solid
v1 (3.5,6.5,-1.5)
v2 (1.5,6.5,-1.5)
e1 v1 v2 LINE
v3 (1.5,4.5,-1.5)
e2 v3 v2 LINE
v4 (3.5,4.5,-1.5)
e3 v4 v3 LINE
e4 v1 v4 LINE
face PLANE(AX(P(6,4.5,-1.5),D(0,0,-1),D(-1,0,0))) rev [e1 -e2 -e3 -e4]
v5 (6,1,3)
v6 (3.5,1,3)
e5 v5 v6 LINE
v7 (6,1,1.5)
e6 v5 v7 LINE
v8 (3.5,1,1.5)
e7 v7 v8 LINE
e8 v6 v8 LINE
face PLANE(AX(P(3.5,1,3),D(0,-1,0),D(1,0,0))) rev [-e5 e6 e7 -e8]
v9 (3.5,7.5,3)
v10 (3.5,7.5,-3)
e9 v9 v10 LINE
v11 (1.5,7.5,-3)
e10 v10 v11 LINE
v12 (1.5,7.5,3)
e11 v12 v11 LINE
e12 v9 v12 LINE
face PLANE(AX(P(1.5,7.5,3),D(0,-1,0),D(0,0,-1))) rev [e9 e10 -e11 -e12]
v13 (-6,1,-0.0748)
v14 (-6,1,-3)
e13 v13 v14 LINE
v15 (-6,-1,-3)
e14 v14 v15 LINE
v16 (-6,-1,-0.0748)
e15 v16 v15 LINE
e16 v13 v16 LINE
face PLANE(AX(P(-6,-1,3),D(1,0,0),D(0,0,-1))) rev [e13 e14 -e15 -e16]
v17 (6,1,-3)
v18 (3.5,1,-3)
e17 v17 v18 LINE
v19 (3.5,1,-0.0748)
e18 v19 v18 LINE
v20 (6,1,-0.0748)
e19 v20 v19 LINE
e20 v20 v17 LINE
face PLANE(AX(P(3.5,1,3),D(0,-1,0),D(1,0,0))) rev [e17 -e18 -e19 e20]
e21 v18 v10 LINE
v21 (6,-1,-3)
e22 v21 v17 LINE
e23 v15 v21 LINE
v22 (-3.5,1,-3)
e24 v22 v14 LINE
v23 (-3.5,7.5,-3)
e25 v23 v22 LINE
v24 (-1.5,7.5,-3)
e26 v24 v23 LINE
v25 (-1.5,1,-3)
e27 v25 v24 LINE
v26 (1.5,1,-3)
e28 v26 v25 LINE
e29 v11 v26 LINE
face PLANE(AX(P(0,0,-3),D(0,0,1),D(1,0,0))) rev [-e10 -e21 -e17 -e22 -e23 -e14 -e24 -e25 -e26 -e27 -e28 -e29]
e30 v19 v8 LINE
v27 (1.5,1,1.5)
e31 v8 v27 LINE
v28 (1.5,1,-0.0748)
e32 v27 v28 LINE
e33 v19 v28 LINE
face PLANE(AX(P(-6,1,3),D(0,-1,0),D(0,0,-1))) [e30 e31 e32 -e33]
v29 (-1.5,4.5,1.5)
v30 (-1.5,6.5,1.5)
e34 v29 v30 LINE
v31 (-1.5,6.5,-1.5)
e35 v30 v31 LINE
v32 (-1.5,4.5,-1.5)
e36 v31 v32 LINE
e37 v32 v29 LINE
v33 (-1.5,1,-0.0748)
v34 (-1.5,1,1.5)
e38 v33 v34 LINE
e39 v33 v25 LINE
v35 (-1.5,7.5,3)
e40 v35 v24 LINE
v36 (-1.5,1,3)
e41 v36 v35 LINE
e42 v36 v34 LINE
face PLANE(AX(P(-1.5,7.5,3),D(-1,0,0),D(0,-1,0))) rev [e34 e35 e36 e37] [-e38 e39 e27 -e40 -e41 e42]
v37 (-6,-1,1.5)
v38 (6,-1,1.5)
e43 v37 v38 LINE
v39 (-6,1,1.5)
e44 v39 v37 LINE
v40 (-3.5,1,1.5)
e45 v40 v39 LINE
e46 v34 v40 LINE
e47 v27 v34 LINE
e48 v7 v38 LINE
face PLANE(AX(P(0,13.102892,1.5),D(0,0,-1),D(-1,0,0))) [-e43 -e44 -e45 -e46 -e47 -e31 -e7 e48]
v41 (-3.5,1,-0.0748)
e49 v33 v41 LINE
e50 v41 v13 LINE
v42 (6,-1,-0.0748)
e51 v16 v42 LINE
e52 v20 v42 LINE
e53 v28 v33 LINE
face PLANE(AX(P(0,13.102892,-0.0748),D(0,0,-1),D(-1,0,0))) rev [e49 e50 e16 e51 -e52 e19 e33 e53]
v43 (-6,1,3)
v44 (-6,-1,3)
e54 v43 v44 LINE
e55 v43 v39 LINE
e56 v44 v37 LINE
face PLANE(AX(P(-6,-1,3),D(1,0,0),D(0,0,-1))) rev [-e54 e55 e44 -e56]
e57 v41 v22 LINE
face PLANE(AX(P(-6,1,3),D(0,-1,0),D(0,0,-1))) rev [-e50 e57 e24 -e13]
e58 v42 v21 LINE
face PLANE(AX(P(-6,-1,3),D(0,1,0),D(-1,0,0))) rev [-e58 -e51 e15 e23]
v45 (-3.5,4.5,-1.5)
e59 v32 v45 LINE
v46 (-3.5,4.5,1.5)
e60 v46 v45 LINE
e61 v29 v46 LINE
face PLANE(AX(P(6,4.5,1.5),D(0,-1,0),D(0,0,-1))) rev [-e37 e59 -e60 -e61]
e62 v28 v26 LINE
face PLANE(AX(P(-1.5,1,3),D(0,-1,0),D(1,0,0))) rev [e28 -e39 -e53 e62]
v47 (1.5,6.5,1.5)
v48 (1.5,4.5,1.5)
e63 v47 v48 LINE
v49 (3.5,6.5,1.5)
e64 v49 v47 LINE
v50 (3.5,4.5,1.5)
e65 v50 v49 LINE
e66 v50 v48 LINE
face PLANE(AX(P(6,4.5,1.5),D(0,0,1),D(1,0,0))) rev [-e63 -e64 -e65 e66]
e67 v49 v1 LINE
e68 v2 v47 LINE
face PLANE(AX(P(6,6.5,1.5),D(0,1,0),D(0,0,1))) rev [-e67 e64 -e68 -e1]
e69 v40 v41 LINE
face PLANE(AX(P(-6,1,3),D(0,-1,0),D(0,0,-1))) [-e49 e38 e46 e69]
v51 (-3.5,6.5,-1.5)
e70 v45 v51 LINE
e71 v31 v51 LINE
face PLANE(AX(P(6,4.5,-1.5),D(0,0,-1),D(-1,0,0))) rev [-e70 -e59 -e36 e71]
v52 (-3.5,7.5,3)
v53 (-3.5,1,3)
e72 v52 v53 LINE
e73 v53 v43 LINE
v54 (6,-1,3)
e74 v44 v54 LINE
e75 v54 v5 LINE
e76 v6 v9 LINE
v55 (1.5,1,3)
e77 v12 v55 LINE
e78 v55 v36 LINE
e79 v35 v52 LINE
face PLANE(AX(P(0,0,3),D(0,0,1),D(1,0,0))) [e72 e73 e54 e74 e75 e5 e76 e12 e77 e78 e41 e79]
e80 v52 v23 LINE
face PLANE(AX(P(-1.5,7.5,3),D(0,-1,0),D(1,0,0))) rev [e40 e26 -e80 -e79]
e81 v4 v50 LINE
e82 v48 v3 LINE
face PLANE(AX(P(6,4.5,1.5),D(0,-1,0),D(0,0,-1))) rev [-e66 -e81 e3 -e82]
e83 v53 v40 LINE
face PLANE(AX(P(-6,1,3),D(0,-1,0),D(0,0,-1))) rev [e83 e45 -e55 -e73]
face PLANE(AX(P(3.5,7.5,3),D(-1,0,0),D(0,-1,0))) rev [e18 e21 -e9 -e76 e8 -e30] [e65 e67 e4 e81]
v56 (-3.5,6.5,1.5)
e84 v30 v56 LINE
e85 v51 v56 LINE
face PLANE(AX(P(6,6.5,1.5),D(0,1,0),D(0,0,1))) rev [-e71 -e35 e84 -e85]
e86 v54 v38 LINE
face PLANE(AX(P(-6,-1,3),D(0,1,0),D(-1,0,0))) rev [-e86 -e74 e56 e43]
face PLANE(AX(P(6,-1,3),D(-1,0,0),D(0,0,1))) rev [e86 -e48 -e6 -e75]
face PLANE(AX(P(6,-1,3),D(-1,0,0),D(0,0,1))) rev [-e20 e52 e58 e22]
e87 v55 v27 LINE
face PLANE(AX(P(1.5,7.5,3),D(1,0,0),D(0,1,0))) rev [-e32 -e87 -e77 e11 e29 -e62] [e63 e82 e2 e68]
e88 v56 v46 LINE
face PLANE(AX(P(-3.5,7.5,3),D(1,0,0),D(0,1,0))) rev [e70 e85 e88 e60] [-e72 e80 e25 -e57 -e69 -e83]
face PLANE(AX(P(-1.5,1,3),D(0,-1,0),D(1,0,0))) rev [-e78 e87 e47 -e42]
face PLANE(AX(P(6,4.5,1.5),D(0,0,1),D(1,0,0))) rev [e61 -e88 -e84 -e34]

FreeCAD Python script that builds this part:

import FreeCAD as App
import Part
import Sketcher

doc = App.newDocument("Part")
params = doc.addObject("Spreadsheet::Sheet", "Params")
for row, (alias, value) in enumerate([
    ("sketch1_width", "12 mm"),
    ("sketch1_width2", "2 mm"),
    ("sketch1_width3", "3 mm"),
    ("sketch1_height", "6.5 mm"),
    ("pad1_length", "6 mm"),
    ("sketch2_width", "12 mm"),
    ("pocket1_length", "2 mm"),
    ("sketch3_width", "2 mm"),
    ("sketch3_height", "3 mm"),
], start=1):
    params.set(f"A{row}", alias)
    params.set(f"B{row}", "=" + value)
    params.setAlias(f"B{row}", alias)

body = doc.addObject("PartDesign::Body", "Body")

# Sketch on XY plane
sketch1 = doc.addObject("Sketcher::SketchObject", "Sketch")
body.addObject(sketch1)
sketch1.AttachmentSupport = (doc.XY_Plane, [""])
sketch1.MapMode = "FlatFace"
sketch1.addGeometry(Part.LineSegment(App.Vector(-6, -1, 0), App.Vector(6, -1, 0)), False)
sketch1.addGeometry(Part.LineSegment(App.Vector(6, -1, 0), App.Vector(6, 1, 0)), False)
sketch1.addGeometry(Part.LineSegment(App.Vector(6, 1, 0), App.Vector(3.5, 1, 0)), False)
sketch1.addGeometry(Part.LineSegment(App.Vector(3.5, 1, 0), App.Vector(3.5, 7.5, 0)), False)
sketch1.addGeometry(Part.LineSegment(App.Vector(3.5, 7.5, 0), App.Vector(1.5, 7.5, 0)), False)
sketch1.addGeometry(Part.LineSegment(App.Vector(1.5, 7.5, 0), App.Vector(1.5, 1, 0)), False)
sketch1.addGeometry(Part.LineSegment(App.Vector(1.5, 1, 0), App.Vector(-1.5, 1, 0)), False)
sketch1.addGeometry(Part.LineSegment(App.Vector(-1.5, 1, 0), App.Vector(-1.5, 7.5, 0)), False)
sketch1.addGeometry(Part.LineSegment(App.Vector(-1.5, 7.5, 0), App.Vector(-3.5, 7.5, 0)), False)
sketch1.addGeometry(Part.LineSegment(App.Vector(-3.5, 7.5, 0), App.Vector(-3.5, 1, 0)), False)
sketch1.addGeometry(Part.LineSegment(App.Vector(-3.5, 1, 0), App.Vector(-6, 1, 0)), False)
sketch1.addGeometry(Part.LineSegment(App.Vector(-6, 1, 0), App.Vector(-6, -1, 0)), False)
sketch1.addConstraint(Sketcher.Constraint("Coincident", 0, 2, 1, 1))
sketch1.addConstraint(Sketcher.Constraint("Coincident", 1, 2, 2, 1))
sketch1.addConstraint(Sketcher.Constraint("Coincident", 2, 2, 3, 1))
sketch1.addConstraint(Sketcher.Constraint("Coincident", 3, 2, 4, 1))
sketch1.addConstraint(Sketcher.Constraint("Coincident", 4, 2, 5, 1))
sketch1.addConstraint(Sketcher.Constraint("Coincident", 5, 2, 6, 1))
sketch1.addConstraint(Sketcher.Constraint("Coincident", 6, 2, 7, 1))
sketch1.addConstraint(Sketcher.Constraint("Coincident", 7, 2, 8, 1))
sketch1.addConstraint(Sketcher.Constraint("Coincident", 8, 2, 9, 1))
sketch1.addConstraint(Sketcher.Constraint("Coincident", 9, 2, 10, 1))
sketch1.addConstraint(Sketcher.Constraint("Coincident", 10, 2, 11, 1))
sketch1.addConstraint(Sketcher.Constraint("Coincident", 11, 2, 0, 1))
sketch1.addConstraint(Sketcher.Constraint("Horizontal", 0))
sketch1.addConstraint(Sketcher.Constraint("Vertical", 1))
sketch1.addConstraint(Sketcher.Constraint("Horizontal", 2))
sketch1.addConstraint(Sketcher.Constraint("Vertical", 3))
sketch1.addConstraint(Sketcher.Constraint("Horizontal", 4))
sketch1.addConstraint(Sketcher.Constraint("Vertical", 5))
sketch1.addConstraint(Sketcher.Constraint("Horizontal", 6))
sketch1.addConstraint(Sketcher.Constraint("Vertical", 7))
sketch1.addConstraint(Sketcher.Constraint("Horizontal", 8))
sketch1.addConstraint(Sketcher.Constraint("Vertical", 9))
sketch1.addConstraint(Sketcher.Constraint("Horizontal", 10))
sketch1.addConstraint(Sketcher.Constraint("Vertical", 11))
sketch1.addConstraint(Sketcher.Constraint("Symmetric", 0, 2, 10, 2, -1, 1))
sketch1.addConstraint(Sketcher.Constraint("Symmetric", 4, 2, 7, 2, -2))
sketch1.addConstraint(Sketcher.Constraint("Symmetric", 2, 2, 9, 2, -2))
sketch1.addConstraint(Sketcher.Constraint("Horizontal", 2, 2, 5, 2))
sketch1.addConstraint(Sketcher.Constraint("Equal", 8, 1))
sketch1.addConstraint(Sketcher.Constraint("DistanceX", 0, 1, 0, 2, 12.0))
sketch1.addConstraint(Sketcher.Constraint("DistanceX", 4, 2, 4, 1, 2.0))
sketch1.addConstraint(Sketcher.Constraint("DistanceX", 6, 2, 6, 1, 3.0))
sketch1.addConstraint(Sketcher.Constraint("DistanceY", 3, 1, 3, 2, 6.5))
sketch1.setExpression("Constraints[29]", "Params.sketch1_width")
sketch1.setExpression("Constraints[30]", "Params.sketch1_width2")
sketch1.setExpression("Constraints[31]", "Params.sketch1_width3")
sketch1.setExpression("Constraints[32]", "Params.sketch1_height")
pad1 = doc.addObject("PartDesign::Pad", "Pad")
body.addObject(pad1)
pad1.Profile = sketch1
pad1.setExpression("Length", "Params.pad1_length")
pad1.Midplane = True

# Sketch on XZ plane
sketch2 = doc.addObject("Sketcher::SketchObject", "Sketch001")
body.addObject(sketch2)
sketch2.AttachmentSupport = (doc.XZ_Plane, [""])
sketch2.MapMode = "FlatFace"
sketch2.AttachmentOffset = App.Placement(App.Vector(0, 0, 1), App.Rotation())
sketch2.addGeometry(Part.LineSegment(App.Vector(-6, 1.5, 0), App.Vector(-6, -0.0748, 0)), False)
sketch2.addGeometry(Part.LineSegment(App.Vector(-6, -0.0748, 0), App.Vector(6, -0.0748, 0)), False)
sketch2.addGeometry(Part.LineSegment(App.Vector(6, -0.0748, 0), App.Vector(6, 1.5, 0)), False)
sketch2.addGeometry(Part.LineSegment(App.Vector(6, 1.5, 0), App.Vector(-6, 1.5, 0)), False)
sketch2.addConstraint(Sketcher.Constraint("Coincident", 0, 2, 1, 1))
sketch2.addConstraint(Sketcher.Constraint("Coincident", 1, 2, 2, 1))
sketch2.addConstraint(Sketcher.Constraint("Coincident", 2, 2, 3, 1))
sketch2.addConstraint(Sketcher.Constraint("Coincident", 3, 2, 0, 1))
sketch2.addConstraint(Sketcher.Constraint("Vertical", 0))
sketch2.addConstraint(Sketcher.Constraint("Horizontal", 1))
sketch2.addConstraint(Sketcher.Constraint("Vertical", 2))
sketch2.addConstraint(Sketcher.Constraint("Horizontal", 3))
sketch2.addConstraint(Sketcher.Constraint("DistanceX", 1, 1, 1, 2, 12.0))
sketch2.addConstraint(Sketcher.Constraint("DistanceX", 0, 2, -1, 1, 6.0))
sketch2.addConstraint(Sketcher.Constraint("DistanceY", -1, 1, 2, 2, 1.5))
sketch2.addConstraint(Sketcher.Constraint("DistanceY", 0, 2, 0, 1, 1.5748))
sketch2.setExpression("Constraints[8]", "Params.sketch2_width")
pocket1 = doc.addObject("PartDesign::Pocket", "Pocket")
body.addObject(pocket1)
pocket1.Profile = sketch2
pocket1.setExpression("Length", "Params.pocket1_length")

# Sketch on YZ plane
sketch3 = doc.addObject("Sketcher::SketchObject", "Sketch002")
body.addObject(sketch3)
sketch3.AttachmentSupport = (doc.YZ_Plane, [""])
sketch3.MapMode = "FlatFace"
sketch3.AttachmentOffset = App.Placement(App.Vector(0, 0, -3.5), App.Rotation())
sketch3.addGeometry(Part.LineSegment(App.Vector(6.5, -1.5, 0), App.Vector(4.5, -1.5, 0)), False)
sketch3.addGeometry(Part.LineSegment(App.Vector(4.5, -1.5, 0), App.Vector(4.5, 1.5, 0)), False)
sketch3.addGeometry(Part.LineSegment(App.Vector(4.5, 1.5, 0), App.Vector(6.5, 1.5, 0)), False)
sketch3.addGeometry(Part.LineSegment(App.Vector(6.5, 1.5, 0), App.Vector(6.5, -1.5, 0)), False)
sketch3.addConstraint(Sketcher.Constraint("Coincident", 0, 2, 1, 1))
sketch3.addConstraint(Sketcher.Constraint("Coincident", 1, 2, 2, 1))
sketch3.addConstraint(Sketcher.Constraint("Coincident", 2, 2, 3, 1))
sketch3.addConstraint(Sketcher.Constraint("Coincident", 3, 2, 0, 1))
sketch3.addConstraint(Sketcher.Constraint("Horizontal", 0))
sketch3.addConstraint(Sketcher.Constraint("Vertical", 1))
sketch3.addConstraint(Sketcher.Constraint("Horizontal", 2))
sketch3.addConstraint(Sketcher.Constraint("Vertical", 3))
sketch3.addConstraint(Sketcher.Constraint("DistanceX", 0, 2, 0, 1, 2.0))
sketch3.addConstraint(Sketcher.Constraint("DistanceY", 1, 1, 1, 2, 3.0))
sketch3.addConstraint(Sketcher.Constraint("DistanceX", -1, 1, 0, 2, 4.5))
sketch3.addConstraint(Sketcher.Constraint("DistanceY", 0, 2, -1, 1, 1.5))
sketch3.setExpression("Constraints[8]", "Params.sketch3_width")
sketch3.setExpression("Constraints[9]", "Params.sketch3_height")
pocket2 = doc.addObject("PartDesign::Pocket", "Pocket001")
body.addObject(pocket2)
pocket2.Profile = sketch3
pocket2.Type = "ThroughAll"
pocket2.Midplane = True

doc.recompute()
